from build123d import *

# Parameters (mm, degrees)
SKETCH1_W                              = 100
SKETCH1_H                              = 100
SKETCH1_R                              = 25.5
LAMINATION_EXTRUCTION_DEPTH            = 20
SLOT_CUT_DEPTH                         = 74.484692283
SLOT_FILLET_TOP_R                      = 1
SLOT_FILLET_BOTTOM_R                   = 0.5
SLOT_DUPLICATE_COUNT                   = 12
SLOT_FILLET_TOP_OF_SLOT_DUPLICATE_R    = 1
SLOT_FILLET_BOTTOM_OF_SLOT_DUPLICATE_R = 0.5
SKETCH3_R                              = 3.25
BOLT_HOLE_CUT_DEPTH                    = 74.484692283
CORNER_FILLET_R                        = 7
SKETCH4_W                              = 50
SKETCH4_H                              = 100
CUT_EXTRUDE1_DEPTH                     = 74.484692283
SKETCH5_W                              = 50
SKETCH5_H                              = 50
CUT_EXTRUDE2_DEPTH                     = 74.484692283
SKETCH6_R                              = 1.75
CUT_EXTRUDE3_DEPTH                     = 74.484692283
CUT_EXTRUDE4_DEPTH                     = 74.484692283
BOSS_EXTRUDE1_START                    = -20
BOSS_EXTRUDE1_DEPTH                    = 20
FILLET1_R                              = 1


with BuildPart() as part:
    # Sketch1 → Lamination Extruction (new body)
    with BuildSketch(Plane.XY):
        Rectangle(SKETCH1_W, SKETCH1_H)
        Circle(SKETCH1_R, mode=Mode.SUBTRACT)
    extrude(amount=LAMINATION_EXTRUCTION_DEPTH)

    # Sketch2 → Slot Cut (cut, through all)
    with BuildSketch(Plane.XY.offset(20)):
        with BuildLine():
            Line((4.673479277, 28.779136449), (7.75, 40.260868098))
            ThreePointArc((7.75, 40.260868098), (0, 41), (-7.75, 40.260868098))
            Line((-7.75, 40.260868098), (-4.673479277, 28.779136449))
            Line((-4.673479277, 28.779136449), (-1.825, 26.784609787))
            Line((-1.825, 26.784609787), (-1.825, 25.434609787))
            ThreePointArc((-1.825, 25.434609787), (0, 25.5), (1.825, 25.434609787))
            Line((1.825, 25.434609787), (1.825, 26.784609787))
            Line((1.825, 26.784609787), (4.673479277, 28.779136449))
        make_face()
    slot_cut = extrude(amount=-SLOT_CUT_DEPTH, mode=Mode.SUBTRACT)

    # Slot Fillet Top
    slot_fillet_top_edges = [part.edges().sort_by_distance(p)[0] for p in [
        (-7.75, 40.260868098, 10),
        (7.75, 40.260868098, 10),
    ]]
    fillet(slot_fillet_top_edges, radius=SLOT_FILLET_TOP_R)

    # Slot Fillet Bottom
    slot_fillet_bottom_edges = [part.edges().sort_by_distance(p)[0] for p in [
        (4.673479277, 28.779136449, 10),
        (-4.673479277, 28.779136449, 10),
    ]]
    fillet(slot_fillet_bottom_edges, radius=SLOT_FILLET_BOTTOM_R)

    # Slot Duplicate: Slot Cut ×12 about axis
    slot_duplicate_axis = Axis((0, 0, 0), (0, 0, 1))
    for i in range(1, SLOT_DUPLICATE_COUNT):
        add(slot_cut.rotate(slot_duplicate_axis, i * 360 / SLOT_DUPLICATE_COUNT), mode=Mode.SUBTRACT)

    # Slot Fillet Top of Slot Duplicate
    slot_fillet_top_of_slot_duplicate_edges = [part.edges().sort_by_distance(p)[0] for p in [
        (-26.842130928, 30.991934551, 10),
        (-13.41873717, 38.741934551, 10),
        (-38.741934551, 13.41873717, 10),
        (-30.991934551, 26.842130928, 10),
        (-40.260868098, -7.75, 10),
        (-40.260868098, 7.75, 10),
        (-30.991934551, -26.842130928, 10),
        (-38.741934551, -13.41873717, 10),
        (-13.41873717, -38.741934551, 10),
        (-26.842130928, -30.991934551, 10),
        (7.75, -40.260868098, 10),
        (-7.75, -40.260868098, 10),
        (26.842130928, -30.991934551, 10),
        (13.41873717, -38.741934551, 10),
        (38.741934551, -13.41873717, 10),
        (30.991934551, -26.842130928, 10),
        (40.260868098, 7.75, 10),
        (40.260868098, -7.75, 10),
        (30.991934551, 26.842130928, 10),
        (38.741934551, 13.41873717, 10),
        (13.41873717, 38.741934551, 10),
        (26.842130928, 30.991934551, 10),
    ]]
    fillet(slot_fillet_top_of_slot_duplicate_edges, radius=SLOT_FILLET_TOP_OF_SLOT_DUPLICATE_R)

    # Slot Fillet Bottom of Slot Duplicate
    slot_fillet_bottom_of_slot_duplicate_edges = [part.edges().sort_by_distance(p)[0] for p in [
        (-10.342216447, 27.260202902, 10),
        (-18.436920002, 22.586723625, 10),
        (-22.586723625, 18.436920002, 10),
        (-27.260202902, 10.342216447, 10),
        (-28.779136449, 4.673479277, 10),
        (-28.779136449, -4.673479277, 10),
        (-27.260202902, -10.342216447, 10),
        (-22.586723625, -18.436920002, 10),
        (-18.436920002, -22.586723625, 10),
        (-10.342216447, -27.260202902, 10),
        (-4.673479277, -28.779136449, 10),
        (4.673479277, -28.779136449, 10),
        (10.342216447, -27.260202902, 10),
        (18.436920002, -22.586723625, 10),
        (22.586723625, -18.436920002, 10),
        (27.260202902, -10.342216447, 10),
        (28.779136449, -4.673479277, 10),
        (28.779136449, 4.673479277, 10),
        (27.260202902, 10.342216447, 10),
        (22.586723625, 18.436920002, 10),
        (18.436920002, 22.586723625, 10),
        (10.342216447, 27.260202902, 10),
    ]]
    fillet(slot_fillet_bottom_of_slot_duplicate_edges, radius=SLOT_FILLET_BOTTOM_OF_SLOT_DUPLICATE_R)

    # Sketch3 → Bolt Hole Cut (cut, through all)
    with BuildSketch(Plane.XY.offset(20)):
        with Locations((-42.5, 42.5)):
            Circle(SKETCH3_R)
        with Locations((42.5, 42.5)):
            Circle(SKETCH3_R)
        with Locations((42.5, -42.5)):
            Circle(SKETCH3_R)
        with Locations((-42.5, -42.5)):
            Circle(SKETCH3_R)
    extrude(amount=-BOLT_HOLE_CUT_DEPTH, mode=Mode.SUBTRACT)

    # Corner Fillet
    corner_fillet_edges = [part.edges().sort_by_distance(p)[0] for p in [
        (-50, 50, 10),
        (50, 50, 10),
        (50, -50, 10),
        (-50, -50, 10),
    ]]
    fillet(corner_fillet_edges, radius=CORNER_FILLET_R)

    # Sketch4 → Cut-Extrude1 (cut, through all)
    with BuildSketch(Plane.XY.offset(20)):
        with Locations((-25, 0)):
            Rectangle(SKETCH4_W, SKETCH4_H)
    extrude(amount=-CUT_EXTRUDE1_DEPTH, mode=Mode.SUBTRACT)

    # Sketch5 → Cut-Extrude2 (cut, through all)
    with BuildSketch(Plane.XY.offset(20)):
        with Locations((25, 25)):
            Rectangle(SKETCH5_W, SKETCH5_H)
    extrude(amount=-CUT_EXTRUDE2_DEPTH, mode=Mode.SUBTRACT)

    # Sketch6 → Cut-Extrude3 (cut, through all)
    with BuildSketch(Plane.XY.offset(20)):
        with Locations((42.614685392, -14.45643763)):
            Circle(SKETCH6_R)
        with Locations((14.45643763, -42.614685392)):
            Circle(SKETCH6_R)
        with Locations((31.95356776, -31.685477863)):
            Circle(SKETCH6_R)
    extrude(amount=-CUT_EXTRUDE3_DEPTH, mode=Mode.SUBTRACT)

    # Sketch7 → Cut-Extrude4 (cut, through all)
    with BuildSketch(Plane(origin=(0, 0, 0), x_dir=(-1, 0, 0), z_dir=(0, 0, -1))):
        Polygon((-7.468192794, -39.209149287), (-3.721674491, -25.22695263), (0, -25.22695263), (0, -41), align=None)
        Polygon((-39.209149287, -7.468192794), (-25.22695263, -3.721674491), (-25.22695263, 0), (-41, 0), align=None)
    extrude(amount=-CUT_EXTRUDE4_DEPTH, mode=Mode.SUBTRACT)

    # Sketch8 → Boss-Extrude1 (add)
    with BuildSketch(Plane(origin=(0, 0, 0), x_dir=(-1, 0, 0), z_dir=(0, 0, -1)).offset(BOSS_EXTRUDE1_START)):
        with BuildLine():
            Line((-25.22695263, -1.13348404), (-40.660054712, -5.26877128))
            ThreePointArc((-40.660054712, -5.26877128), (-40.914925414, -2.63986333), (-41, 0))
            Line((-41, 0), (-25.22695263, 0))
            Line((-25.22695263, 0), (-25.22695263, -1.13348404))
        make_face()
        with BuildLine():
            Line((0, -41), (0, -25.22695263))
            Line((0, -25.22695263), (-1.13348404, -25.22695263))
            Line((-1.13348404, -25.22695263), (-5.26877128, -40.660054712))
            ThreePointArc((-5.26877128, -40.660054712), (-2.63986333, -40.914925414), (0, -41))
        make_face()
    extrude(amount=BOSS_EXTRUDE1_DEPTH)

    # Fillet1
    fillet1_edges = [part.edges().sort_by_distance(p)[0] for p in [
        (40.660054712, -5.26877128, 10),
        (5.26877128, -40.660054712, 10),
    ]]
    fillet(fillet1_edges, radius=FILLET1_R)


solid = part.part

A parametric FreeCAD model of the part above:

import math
import FreeCAD as App
import Part
import Sketcher

V = App.Vector
Q = App.Units.Quantity


def edges_at(feature, points):
    """Names of the edges that pass closest to the given points."""
    edges = feature.Shape.Edges
    near = lambda p: min(range(len(edges)), key=lambda i: edges[i].distToShape(Part.Vertex(*p))[0])
    return sorted({f"Edge{near(p) + 1}" for p in points})

doc = App.newDocument("Part")
body = doc.addObject("PartDesign::Body", "Body")

# Sketch on XY plane
sketch1 = body.newObject("Sketcher::SketchObject", "Sketch")
sketch1.AttachmentSupport = (doc.getObject("XY_Plane"), [""])
sketch1.MapMode = "FlatFace"
sketch1.addGeometry(Part.LineSegment(V(-50, 50, 0), V(-50, -50, 0)), False)
sketch1.addGeometry(Part.LineSegment(V(-50, -50, 0), V(50, -50, 0)), False)
sketch1.addGeometry(Part.LineSegment(V(50, -50, 0), V(50, 50, 0)), False)
sketch1.addGeometry(Part.LineSegment(V(50, 50, 0), V(-50, 50, 0)), False)
sketch1.addGeometry(Part.Circle(V(0, 0, 0), V(0, 0, 1), 25.5), False)
sketch1.addConstraint(Sketcher.Constraint("Coincident", 0, 2, 1, 1))
sketch1.addConstraint(Sketcher.Constraint("Coincident", 1, 2, 2, 1))
sketch1.addConstraint(Sketcher.Constraint("Coincident", 2, 2, 3, 1))
sketch1.addConstraint(Sketcher.Constraint("Coincident", 3, 2, 0, 1))
sketch1.addConstraint(Sketcher.Constraint("Vertical", 0))
sketch1.addConstraint(Sketcher.Constraint("Horizontal", 1))
sketch1.addConstraint(Sketcher.Constraint("Vertical", 2))
sketch1.addConstraint(Sketcher.Constraint("Horizontal", 3))
sketch1.addConstraint(Sketcher.Constraint("Coincident", 4, 3, -1, 1))
sketch1.addConstraint(Sketcher.Constraint("Symmetric", 0, 2, 2, 2, -1, 1))
sketch1.addConstraint(Sketcher.Constraint("Equal", 3, 0))
sketch1.addConstraint(Sketcher.Constraint("Diameter", 4, 51.0))
sketch1.addConstraint(Sketcher.Constraint("DistanceX", 1, 1, 1, 2, 100.0))
pad1 = body.newObject("PartDesign::Pad", "Pad")
pad1.Profile = sketch1
pad1.Length = 20

# Sketch on XY plane
sketch2 = body.newObject("Sketcher::SketchObject", "Sketch001")
sketch2.AttachmentSupport = (doc.getObject("XY_Plane"), [""])
sketch2.MapMode = "FlatFace"
sketch2.AttachmentOffset = App.Placement(V(0, 0, 20), App.Rotation())
sketch2.addGeometry(Part.LineSegment(V(4.673479, 28.779136, 0), V(7.75, 40.260868, 0)), False)
sketch2.addGeometry(Part.ArcOfCircle(Part.Circle(V(0, 0, 0), V(0, 0, 1), 41), math.radians(79.104146), math.radians(100.895854)), False)
sketch2.addGeometry(Part.LineSegment(V(-7.75, 40.260868, 0), V(-4.673479, 28.779136, 0)), False)
sketch2.addGeometry(Part.LineSegment(V(-4.673479, 28.779136, 0), V(-1.825, 26.78461, 0)), False)
sketch2.addGeometry(Part.LineSegment(V(-1.825, 26.78461, 0), V(-1.825, 25.43461, 0)), False)
sketch2.addGeometry(Part.ArcOfCircle(Part.Circle(V(0, 0, 0), V(0, 0, 1), 25.5), math.radians(85.895911), math.radians(94.104089)), False)
sketch2.addGeometry(Part.LineSegment(V(1.825, 25.43461, 0), V(1.825, 26.78461, 0)), False)
sketch2.addGeometry(Part.LineSegment(V(1.825, 26.78461, 0), V(4.673479, 28.779136, 0)), False)
sketch2.addConstraint(Sketcher.Constraint("Coincident", 0, 2, 1, 1))
sketch2.addConstraint(Sketcher.Constraint("Coincident", 1, 2, 2, 1))
sketch2.addConstraint(Sketcher.Constraint("Coincident", 2, 2, 3, 1))
sketch2.addConstraint(Sketcher.Constraint("Coincident", 3, 2, 4, 1))
sketch2.addConstraint(Sketcher.Constraint("Coincident", 4, 2, 5, 2))
sketch2.addConstraint(Sketcher.Constraint("Coincident", 5, 1, 6, 1))
sketch2.addConstraint(Sketcher.Constraint("Coincident", 6, 2, 7, 1))
sketch2.addConstraint(Sketcher.Constraint("Coincident", 7, 2, 0, 1))
sketch2.addConstraint(Sketcher.Constraint("Vertical", 4))
sketch2.addConstraint(Sketcher.Constraint("Vertical", 6))
sketch2.addConstraint(Sketcher.Constraint("Coincident", 1, 3, -1, 1))
sketch2.addConstraint(Sketcher.Constraint("Coincident", 5, 3, -1, 1))
sketch2.addConstraint(Sketcher.Constraint("Symmetric", 3, 2, 6, 2, -2))
sketch2.addConstraint(Sketcher.Constraint("Symmetric", 2, 2, 7, 2, -2))
sketch2.addConstraint(Sketcher.Constraint("Horizontal", 0, 2, 1, 2))
sketch2.addConstraint(Sketcher.Constraint("Radius", 1, 41.0))
sketch2.addConstraint(Sketcher.Constraint("Radius", 5, 25.5))
sketch2.addConstraint(Sketcher.Constraint("Angle", 0, Q("75 deg")))
sketch2.addConstraint(Sketcher.Constraint("Angle", 3, Q("-35 deg")))
sketch2.addConstraint(Sketcher.Constraint("DistanceY", 4, 2, 4, 1, 1.35))
sketch2.addConstraint(Sketcher.Constraint("DistanceX", 1, 2, 0, 2, 15.5))
sketch2.addConstraint(Sketcher.Constraint("DistanceX", 4, 2, 5, 1, 3.65))
pocket1 = body.newObject("PartDesign::Pocket", "Pocket")
pocket1.Profile = sketch2
pocket1.Type = "ThroughAll"
doc.recompute()

fillet = body.newObject("PartDesign::Fillet", "Fillet")
fillet.Base = (pocket1, edges_at(pocket1, [(-7.75, 40.261, 10), (7.75, 40.261, 10)]))
fillet.Radius = 1
doc.recompute()

fillet2 = body.newObject("PartDesign::Fillet", "Fillet001")
fillet2.Base = (fillet, edges_at(fillet, [(4.673, 28.779, 10), (-4.673, 28.779, 10)]))
fillet2.Radius = 0.5
doc.recompute()

polarpattern = body.newObject("PartDesign::PolarPattern", "PolarPattern")
polarpattern.Originals = [pocket1]
polarpattern.Axis = (doc.getObject("Z_Axis"), [""])
polarpattern.Angle = 360
polarpattern.Occurrences = 12
body.Tip = polarpattern
doc.recompute()

fillet3 = body.newObject("PartDesign::Fillet", "Fillet002")
fillet3.Base = (polarpattern, edges_at(polarpattern, [
    (-26.842, 30.992, 10),
    (-13.419, 38.742, 10),
    (-38.742, 13.419, 10),
    (-30.992, 26.842, 10),
    (-40.261, -7.75, 10),
    (-40.261, 7.75, 10),
    (-30.992, -26.842, 10),
    (-38.742, -13.419, 10),
    (-13.419, -38.742, 10),
    (-26.842, -30.992, 10),
    (7.75, -40.261, 10),
    (-7.75, -40.261, 10),
    (26.842, -30.992, 10),
    (13.419, -38.742, 10),
    (38.742, -13.419, 10),
    (30.992, -26.842, 10),
    (40.261, 7.75, 10),
    (40.261, -7.75, 10),
    (30.992, 26.842, 10),
    (38.742, 13.419, 10),
    (13.419, 38.742, 10),
    (26.842, 30.992, 10),
]))
fillet3.Radius = 1
doc.recompute()

fillet4 = body.newObject("PartDesign::Fillet", "Fillet003")
fillet4.Base = (fillet3, edges_at(fillet3, [
    (-10.342, 27.26, 10),
    (-18.437, 22.587, 10),
    (-22.587, 18.437, 10),
    (-27.26, 10.342, 10),
    (-28.779, 4.673, 10),
    (-28.779, -4.673, 10),
    (-27.26, -10.342, 10),
    (-22.587, -18.437, 10),
    (-18.437, -22.587, 10),
    (-10.342, -27.26, 10),
    (-4.673, -28.779, 10),
    (4.673, -28.779, 10),
    (10.342, -27.26, 10),
    (18.437, -22.587, 10),
    (22.587, -18.437, 10),
    (27.26, -10.342, 10),
    (28.779, -4.673, 10),
    (28.779, 4.673, 10),
    (27.26, 10.342, 10),
    (22.587, 18.437, 10),
    (18.437, 22.587, 10),
    (10.342, 27.26, 10),
]))
fillet4.Radius = 0.5

# Sketch on XY plane
sketch3 = body.newObject("Sketcher::SketchObject", "Sketch002")
sketch3.AttachmentSupport = (doc.getObject("XY_Plane"), [""])
sketch3.MapMode = "FlatFace"
sketch3.AttachmentOffset = App.Placement(V(0, 0, 20), App.Rotation())
sketch3.addGeometry(Part.Circle(V(-42.5, 42.5, 0), V(0, 0, 1), 3.25), False)
sketch3.addGeometry(Part.Circle(V(42.5, 42.5, 0), V(0, 0, 1), 3.25), False)
sketch3.addGeometry(Part.Circle(V(42.5, -42.5, 0), V(0, 0, 1), 3.25), False)
sketch3.addGeometry(Part.Circle(V(-42.5, -42.5, 0), V(0, 0, 1), 3.25), False)
sketch3.addConstraint(Sketcher.Constraint("Equal", 0, 1))
sketch3.addConstraint(Sketcher.Constraint("Equal", 1, 2))
sketch3.addConstraint(Sketcher.Constraint("Equal", 2, 3))
sketch3.addConstraint(Sketcher.Constraint("Symmetric", 0, 3, 2, 3, -1, 1))
sketch3.addConstraint(Sketcher.Constraint("Symmetric", 1, 3, 3, 3, -1, 1))
sketch3.addConstraint(Sketcher.Constraint("Symmetric", 0, 3, 1, 3, -2))
sketch3.addConstraint(Sketcher.Constraint("Diameter", 0, 6.5))
sketch3.addConstraint(Sketcher.Constraint("DistanceX", 0, 3, 1, 3, 85.0))
sketch3.addConstraint(Sketcher.Constraint("DistanceY", 2, 3, 1, 3, 85.0))
pocket2 = body.newObject("PartDesign::Pocket", "Pocket001")
pocket2.Profile = sketch3
pocket2.Type = "ThroughAll"
doc.recompute()

fillet5 = body.newObject("PartDesign::Fillet", "Fillet004")
fillet5.Base = (pocket2, edges_at(pocket2, [
    (-50, 50, 10),
    (50, 50, 10),
    (50, -50, 10),
    (-50, -50, 10),
]))
fillet5.Radius = 7

# Sketch on XY plane
sketch4 = body.newObject("Sketcher::SketchObject", "Sketch003")
sketch4.AttachmentSupport = (doc.getObject("XY_Plane"), [""])
sketch4.MapMode = "FlatFace"
sketch4.AttachmentOffset = App.Placement(V(0, 0, 20), App.Rotation())
sketch4.addGeometry(Part.LineSegment(V(-50, 50, 0), V(-50, -50, 0)), False)
sketch4.addGeometry(Part.LineSegment(V(-50, -50, 0), V(0, -50, 0)), False)
sketch4.addGeometry(Part.LineSegment(V(0, -50, 0), V(0, 50, 0)), False)
sketch4.addGeometry(Part.LineSegment(V(0, 50, 0), V(-50, 50, 0)), False)
sketch4.addConstraint(Sketcher.Constraint("Coincident", 0, 2, 1, 1))
sketch4.addConstraint(Sketcher.Constraint("Coincident", 1, 2, 2, 1))
sketch4.addConstraint(Sketcher.Constraint("Coincident", 2, 2, 3, 1))
sketch4.addConstraint(Sketcher.Constraint("Coincident", 3, 2, 0, 1))
sketch4.addConstraint(Sketcher.Constraint("Vertical", 0))
sketch4.addConstraint(Sketcher.Constraint("Horizontal", 1))
sketch4.addConstraint(Sketcher.Constraint("Vertical", 2))
sketch4.addConstraint(Sketcher.Constraint("Horizontal", 3))
sketch4.addConstraint(Sketcher.Constraint("Symmetric", 1, 2, 2, 2, -1, 1))
sketch4.addConstraint(Sketcher.Constraint("DistanceX", 1, 1, 1, 2, 50.0))
sketch4.addConstraint(Sketcher.Constraint("DistanceY", 0, 2, 0, 1, 100.0))
pocket3 = body.newObject("PartDesign::Pocket", "Pocket002")
pocket3.Profile = sketch4
pocket3.Type = "ThroughAll"

# Sketch on XY plane
sketch5 = body.newObject("Sketcher::SketchObject", "Sketch004")
sketch5.AttachmentSupport = (doc.getObject("XY_Plane"), [""])
sketch5.MapMode = "FlatFace"
sketch5.AttachmentOffset = App.Placement(V(0, 0, 20), App.Rotation())
sketch5.addGeometry(Part.LineSegment(V(0, 50, 0), V(0, 0, 0)), False)
sketch5.addGeometry(Part.LineSegment(V(0, 0, 0), V(50, 0, 0)), False)
sketch5.addGeometry(Part.LineSegment(V(50, 0, 0), V(50, 50, 0)), False)
sketch5.addGeometry(Part.LineSegment(V(50, 50, 0), V(0, 50, 0)), False)
sketch5.addConstraint(Sketcher.Constraint("Coincident", 0, 2, 1, 1))
sketch5.addConstraint(Sketcher.Constraint("Coincident", 1, 2, 2, 1))
sketch5.addConstraint(Sketcher.Constraint("Coincident", 2, 2, 3, 1))
sketch5.addConstraint(Sketcher.Constraint("Coincident", 3, 2, 0, 1))
sketch5.addConstraint(Sketcher.Constraint("Vertical", 0))
sketch5.addConstraint(Sketcher.Constraint("Horizontal", 1))
sketch5.addConstraint(Sketcher.Constraint("Vertical", 2))
sketch5.addConstraint(Sketcher.Constraint("Horizontal", 3))
sketch5.addConstraint(Sketcher.Constraint("Coincident", 0, 2, -1, 1))
sketch5.addConstraint(Sketcher.Constraint("Equal", 3, 0))
sketch5.addConstraint(Sketcher.Constraint("DistanceX", 1, 1, 1, 2, 50.0))
pocket4 = body.newObject("PartDesign::Pocket", "Pocket003")
pocket4.Profile = sketch5
pocket4.Type = "ThroughAll"

# Sketch on XY plane
sketch6 = body.newObject("Sketcher::SketchObject", "Sketch005")
sketch6.AttachmentSupport = (doc.getObject("XY_Plane"), [""])
sketch6.MapMode = "FlatFace"
sketch6.AttachmentOffset = App.Placement(V(0, 0, 20), App.Rotation())
sketch6.addGeometry(Part.Circle(V(42.614685, -14.456438, 0), V(0, 0, 1), 1.75), False)
sketch6.addGeometry(Part.Circle(V(14.456438, -42.614685, 0), V(0, 0, 1), 1.75), False)
sketch6.addGeometry(Part.Circle(V(31.953568, -31.685478, 0), V(0, 0, 1), 1.75), False)
sketch6.addConstraint(Sketcher.Constraint("Equal", 0, 1))
sketch6.addConstraint(Sketcher.Constraint("Equal", 1, 2))
sketch6.addConstraint(Sketcher.Constraint("Diameter", 0, 3.5))
sketch6.addConstraint(Sketcher.Constraint("DistanceY", 2, 3, 0, 3, 17.22904))
sketch6.addConstraint(Sketcher.Constraint("DistanceX", 1, 3, 2, 3, 17.49713))
sketch6.addConstraint(Sketcher.Constraint("DistanceX", -1, 1, 0, 3, 42.614685))
sketch6.addConstraint(Sketcher.Constraint("DistanceY", 0, 3, -1, 1, 14.456438))
sketch6.addConstraint(Sketcher.Constraint("DistanceX", -1, 1, 1, 3, 14.456438))
sketch6.addConstraint(Sketcher.Constraint("DistanceY", 1, 3, -1, 1, 42.614685))
pocket5 = body.newObject("PartDesign::Pocket", "Pocket004")
pocket5.Profile = sketch6
pocket5.Type = "ThroughAll"

# Sketch on XY plane
sketch7 = body.newObject("Sketcher::SketchObject", "Sketch006")
sketch7.AttachmentSupport = (doc.getObject("XY_Plane"), [""])
sketch7.MapMode = "FlatFace"
sketch7.addGeometry(Part.LineSegment(V(3.721674, -25.226953, 0), V(7.468193, -39.209149, 0)), False)
sketch7.addGeometry(Part.LineSegment(V(7.468193, -39.209149, 0), V(0, -41, 0)), False)
sketch7.addGeometry(Part.LineSegment(V(0, -41, 0), V(0, -25.226953, 0)), False)
sketch7.addGeometry(Part.LineSegment(V(0, -25.226953, 0), V(3.721674, -25.226953, 0)), False)
sketch7.addGeometry(Part.LineSegment(V(39.209149, -7.468193, 0), V(25.226953, -3.721674, 0)), False)
sketch7.addGeometry(Part.LineSegment(V(25.226953, -3.721674, 0), V(25.226953, 0, 0)), False)
sketch7.addGeometry(Part.LineSegment(V(25.226953, 0, 0), V(41, 0, 0)), False)
sketch7.addGeometry(Part.LineSegment(V(41, 0, 0), V(39.209149, -7.468193, 0)), False)
sketch7.addConstraint(Sketcher.Constraint("Coincident", 0, 2, 1, 1))
sketch7.addConstraint(Sketcher.Constraint("Coincident", 1, 2, 2, 1))
sketch7.addConstraint(Sketcher.Constraint("Coincident", 2, 2, 3, 1))
sketch7.addConstraint(Sketcher.Constraint("Coincident", 3, 2, 0, 1))
sketch7.addConstraint(Sketcher.Constraint("Coincident", 4, 2, 5, 1))
sketch7.addConstraint(Sketcher.Constraint("Coincident", 5, 2, 6, 1))
sketch7.addConstraint(Sketcher.Constraint("Coincident", 6, 2, 7, 1))
sketch7.addConstraint(Sketcher.Constraint("Coincident", 7, 2, 4, 1))
sketch7.addConstraint(Sketcher.Constraint("Vertical", 2))
sketch7.addConstraint(Sketcher.Constraint("Horizontal", 3))
sketch7.addConstraint(Sketcher.Constraint("Vertical", 5))
sketch7.addConstraint(Sketcher.Constraint("Horizontal", 6))
sketch7.addConstraint(Sketcher.Constraint("PointOnObject", 1, 2, -2))
sketch7.addConstraint(Sketcher.Constraint("PointOnObject", 5, 2, -1))
sketch7.addConstraint(Sketcher.Constraint("Equal", 6, 2))
sketch7.addConstraint(Sketcher.Constraint("Equal", 3, 5))
sketch7.addConstraint(Sketcher.Constraint("Equal", 0, 4))
sketch7.addConstraint(Sketcher.Constraint("Equal", 1, 7))
sketch7.addConstraint(Sketcher.Constraint("Angle", 0, Q("-75 deg")))
sketch7.addConstraint(Sketcher.Constraint("DistanceY", 1, 2, -1, 1, 41.0))
sketch7.addConstraint(Sketcher.Constraint("DistanceX", -1, 1, 6, 2, 41.0))
sketch7.addConstraint(Sketcher.Constraint("DistanceX", 3, 1, 3, 2, 3.721674))
sketch7.addConstraint(Sketcher.Constraint("DistanceX", 6, 1, 6, 2, 15.773047))
sketch7.addConstraint(Sketcher.Constraint("DistanceY", 0, 2, -1, 1, 39.209149))
pocket6 = body.newObject("PartDesign::Pocket", "Pocket005")
pocket6.Profile = sketch7
pocket6.Type = "ThroughAll"
pocket6.Reversed = True

# Sketch on XY plane
sketch8 = body.newObject("Sketcher::SketchObject", "Sketch007")
sketch8.AttachmentSupport = (doc.getObject("XY_Plane"), [""])
sketch8.MapMode = "FlatFace"
sketch8.AttachmentOffset = App.Placement(V(0, 0, 20), App.Rotation())
sketch8.addGeometry(Part.LineSegment(V(40.660055, -5.268771, 0), V(25.226953, -1.133484, 0)), False)
sketch8.addGeometry(Part.LineSegment(V(25.226953, -1.133484, 0), V(25.226953, 0, 0)), False)
sketch8.addGeometry(Part.LineSegment(V(25.226953, 0, 0), V(41, 0, 0)), False)
sketch8.addGeometry(Part.ArcOfCircle(Part.Circle(V(0, 0, 0), V(0, 0, 1), 41), math.radians(-7.383304), math.radians(0)), False)
sketch8.addGeometry(Part.LineSegment(V(0, -41, 0), V(0, -25.226953, 0)), False)
sketch8.addGeometry(Part.LineSegment(V(0, -25.226953, 0), V(1.133484, -25.226953, 0)), False)
sketch8.addGeometry(Part.LineSegment(V(1.133484, -25.226953, 0), V(5.268771, -40.660055, 0)), False)
sketch8.addGeometry(Part.ArcOfCircle(Part.Circle(V(0, 0, 0), V(0, 0, 1), 41), math.radians(-90), math.radians(-82.616696)), False)
sketch8.addConstraint(Sketcher.Constraint("Coincident", 0, 2, 1, 1))
sketch8.addConstraint(Sketcher.Constraint("Coincident", 1, 2, 2, 1))
sketch8.addConstraint(Sketcher.Constraint("Coincident", 2, 2, 3, 2))
sketch8.addConstraint(Sketcher.Constraint("Coincident", 3, 1, 0, 1))
sketch8.addConstraint(Sketcher.Constraint("Coincident", 4, 2, 5, 1))
sketch8.addConstraint(Sketcher.Constraint("Coincident", 5, 2, 6, 1))
sketch8.addConstraint(Sketcher.Constraint("Coincident", 6, 2, 7, 2))
sketch8.addConstraint(Sketcher.Constraint("Coincident", 7, 1, 4, 1))
sketch8.addConstraint(Sketcher.Constraint("Vertical", 1))
sketch8.addConstraint(Sketcher.Constraint("Horizontal", 2))
sketch8.addConstraint(Sketcher.Constraint("Vertical", 4))
sketch8.addConstraint(Sketcher.Constraint("Horizontal", 5))
sketch8.addConstraint(Sketcher.Constraint("Coincident", 3, 3, -1, 1))
sketch8.addConstraint(Sketcher.Constraint("Coincident", 7, 3, -1, 1))
sketch8.addConstraint(Sketcher.Constraint("Equal", 3, 7))
sketch8.addConstraint(Sketcher.Constraint("PointOnObject", 1, 2, -1))
sketch8.addConstraint(Sketcher.Constraint("PointOnObject", 4, 2, -2))
sketch8.addConstraint(Sketcher.Constraint("Equal", 5, 1))
sketch8.addConstraint(Sketcher.Constraint("Equal", 2, 4))
sketch8.addConstraint(Sketcher.Constraint("Equal", 0, 6))
sketch8.addConstraint(Sketcher.Constraint("Radius", 3, 41.0))
sketch8.addConstraint(Sketcher.Constraint("Angle", 0, Q("165 deg")))
sketch8.addConstraint(Sketcher.Constraint("DistanceX", 2, 1, 2, 2, 15.773047))
sketch8.addConstraint(Sketcher.Constraint("DistanceX", 5, 1, 5, 2, 1.133484))
pad2 = body.newObject("PartDesign::Pad", "Pad001")
pad2.Profile = sketch8
pad2.Length = 20
pad2.Reversed = True
doc.recompute()

fillet6 = body.newObject("PartDesign::Fillet", "Fillet005")
fillet6.Base = (pad2, edges_at(pad2, [(40.66, -5.269, 10), (5.269, -40.66, 10)]))
fillet6.Radius = 1

doc.recompute()
